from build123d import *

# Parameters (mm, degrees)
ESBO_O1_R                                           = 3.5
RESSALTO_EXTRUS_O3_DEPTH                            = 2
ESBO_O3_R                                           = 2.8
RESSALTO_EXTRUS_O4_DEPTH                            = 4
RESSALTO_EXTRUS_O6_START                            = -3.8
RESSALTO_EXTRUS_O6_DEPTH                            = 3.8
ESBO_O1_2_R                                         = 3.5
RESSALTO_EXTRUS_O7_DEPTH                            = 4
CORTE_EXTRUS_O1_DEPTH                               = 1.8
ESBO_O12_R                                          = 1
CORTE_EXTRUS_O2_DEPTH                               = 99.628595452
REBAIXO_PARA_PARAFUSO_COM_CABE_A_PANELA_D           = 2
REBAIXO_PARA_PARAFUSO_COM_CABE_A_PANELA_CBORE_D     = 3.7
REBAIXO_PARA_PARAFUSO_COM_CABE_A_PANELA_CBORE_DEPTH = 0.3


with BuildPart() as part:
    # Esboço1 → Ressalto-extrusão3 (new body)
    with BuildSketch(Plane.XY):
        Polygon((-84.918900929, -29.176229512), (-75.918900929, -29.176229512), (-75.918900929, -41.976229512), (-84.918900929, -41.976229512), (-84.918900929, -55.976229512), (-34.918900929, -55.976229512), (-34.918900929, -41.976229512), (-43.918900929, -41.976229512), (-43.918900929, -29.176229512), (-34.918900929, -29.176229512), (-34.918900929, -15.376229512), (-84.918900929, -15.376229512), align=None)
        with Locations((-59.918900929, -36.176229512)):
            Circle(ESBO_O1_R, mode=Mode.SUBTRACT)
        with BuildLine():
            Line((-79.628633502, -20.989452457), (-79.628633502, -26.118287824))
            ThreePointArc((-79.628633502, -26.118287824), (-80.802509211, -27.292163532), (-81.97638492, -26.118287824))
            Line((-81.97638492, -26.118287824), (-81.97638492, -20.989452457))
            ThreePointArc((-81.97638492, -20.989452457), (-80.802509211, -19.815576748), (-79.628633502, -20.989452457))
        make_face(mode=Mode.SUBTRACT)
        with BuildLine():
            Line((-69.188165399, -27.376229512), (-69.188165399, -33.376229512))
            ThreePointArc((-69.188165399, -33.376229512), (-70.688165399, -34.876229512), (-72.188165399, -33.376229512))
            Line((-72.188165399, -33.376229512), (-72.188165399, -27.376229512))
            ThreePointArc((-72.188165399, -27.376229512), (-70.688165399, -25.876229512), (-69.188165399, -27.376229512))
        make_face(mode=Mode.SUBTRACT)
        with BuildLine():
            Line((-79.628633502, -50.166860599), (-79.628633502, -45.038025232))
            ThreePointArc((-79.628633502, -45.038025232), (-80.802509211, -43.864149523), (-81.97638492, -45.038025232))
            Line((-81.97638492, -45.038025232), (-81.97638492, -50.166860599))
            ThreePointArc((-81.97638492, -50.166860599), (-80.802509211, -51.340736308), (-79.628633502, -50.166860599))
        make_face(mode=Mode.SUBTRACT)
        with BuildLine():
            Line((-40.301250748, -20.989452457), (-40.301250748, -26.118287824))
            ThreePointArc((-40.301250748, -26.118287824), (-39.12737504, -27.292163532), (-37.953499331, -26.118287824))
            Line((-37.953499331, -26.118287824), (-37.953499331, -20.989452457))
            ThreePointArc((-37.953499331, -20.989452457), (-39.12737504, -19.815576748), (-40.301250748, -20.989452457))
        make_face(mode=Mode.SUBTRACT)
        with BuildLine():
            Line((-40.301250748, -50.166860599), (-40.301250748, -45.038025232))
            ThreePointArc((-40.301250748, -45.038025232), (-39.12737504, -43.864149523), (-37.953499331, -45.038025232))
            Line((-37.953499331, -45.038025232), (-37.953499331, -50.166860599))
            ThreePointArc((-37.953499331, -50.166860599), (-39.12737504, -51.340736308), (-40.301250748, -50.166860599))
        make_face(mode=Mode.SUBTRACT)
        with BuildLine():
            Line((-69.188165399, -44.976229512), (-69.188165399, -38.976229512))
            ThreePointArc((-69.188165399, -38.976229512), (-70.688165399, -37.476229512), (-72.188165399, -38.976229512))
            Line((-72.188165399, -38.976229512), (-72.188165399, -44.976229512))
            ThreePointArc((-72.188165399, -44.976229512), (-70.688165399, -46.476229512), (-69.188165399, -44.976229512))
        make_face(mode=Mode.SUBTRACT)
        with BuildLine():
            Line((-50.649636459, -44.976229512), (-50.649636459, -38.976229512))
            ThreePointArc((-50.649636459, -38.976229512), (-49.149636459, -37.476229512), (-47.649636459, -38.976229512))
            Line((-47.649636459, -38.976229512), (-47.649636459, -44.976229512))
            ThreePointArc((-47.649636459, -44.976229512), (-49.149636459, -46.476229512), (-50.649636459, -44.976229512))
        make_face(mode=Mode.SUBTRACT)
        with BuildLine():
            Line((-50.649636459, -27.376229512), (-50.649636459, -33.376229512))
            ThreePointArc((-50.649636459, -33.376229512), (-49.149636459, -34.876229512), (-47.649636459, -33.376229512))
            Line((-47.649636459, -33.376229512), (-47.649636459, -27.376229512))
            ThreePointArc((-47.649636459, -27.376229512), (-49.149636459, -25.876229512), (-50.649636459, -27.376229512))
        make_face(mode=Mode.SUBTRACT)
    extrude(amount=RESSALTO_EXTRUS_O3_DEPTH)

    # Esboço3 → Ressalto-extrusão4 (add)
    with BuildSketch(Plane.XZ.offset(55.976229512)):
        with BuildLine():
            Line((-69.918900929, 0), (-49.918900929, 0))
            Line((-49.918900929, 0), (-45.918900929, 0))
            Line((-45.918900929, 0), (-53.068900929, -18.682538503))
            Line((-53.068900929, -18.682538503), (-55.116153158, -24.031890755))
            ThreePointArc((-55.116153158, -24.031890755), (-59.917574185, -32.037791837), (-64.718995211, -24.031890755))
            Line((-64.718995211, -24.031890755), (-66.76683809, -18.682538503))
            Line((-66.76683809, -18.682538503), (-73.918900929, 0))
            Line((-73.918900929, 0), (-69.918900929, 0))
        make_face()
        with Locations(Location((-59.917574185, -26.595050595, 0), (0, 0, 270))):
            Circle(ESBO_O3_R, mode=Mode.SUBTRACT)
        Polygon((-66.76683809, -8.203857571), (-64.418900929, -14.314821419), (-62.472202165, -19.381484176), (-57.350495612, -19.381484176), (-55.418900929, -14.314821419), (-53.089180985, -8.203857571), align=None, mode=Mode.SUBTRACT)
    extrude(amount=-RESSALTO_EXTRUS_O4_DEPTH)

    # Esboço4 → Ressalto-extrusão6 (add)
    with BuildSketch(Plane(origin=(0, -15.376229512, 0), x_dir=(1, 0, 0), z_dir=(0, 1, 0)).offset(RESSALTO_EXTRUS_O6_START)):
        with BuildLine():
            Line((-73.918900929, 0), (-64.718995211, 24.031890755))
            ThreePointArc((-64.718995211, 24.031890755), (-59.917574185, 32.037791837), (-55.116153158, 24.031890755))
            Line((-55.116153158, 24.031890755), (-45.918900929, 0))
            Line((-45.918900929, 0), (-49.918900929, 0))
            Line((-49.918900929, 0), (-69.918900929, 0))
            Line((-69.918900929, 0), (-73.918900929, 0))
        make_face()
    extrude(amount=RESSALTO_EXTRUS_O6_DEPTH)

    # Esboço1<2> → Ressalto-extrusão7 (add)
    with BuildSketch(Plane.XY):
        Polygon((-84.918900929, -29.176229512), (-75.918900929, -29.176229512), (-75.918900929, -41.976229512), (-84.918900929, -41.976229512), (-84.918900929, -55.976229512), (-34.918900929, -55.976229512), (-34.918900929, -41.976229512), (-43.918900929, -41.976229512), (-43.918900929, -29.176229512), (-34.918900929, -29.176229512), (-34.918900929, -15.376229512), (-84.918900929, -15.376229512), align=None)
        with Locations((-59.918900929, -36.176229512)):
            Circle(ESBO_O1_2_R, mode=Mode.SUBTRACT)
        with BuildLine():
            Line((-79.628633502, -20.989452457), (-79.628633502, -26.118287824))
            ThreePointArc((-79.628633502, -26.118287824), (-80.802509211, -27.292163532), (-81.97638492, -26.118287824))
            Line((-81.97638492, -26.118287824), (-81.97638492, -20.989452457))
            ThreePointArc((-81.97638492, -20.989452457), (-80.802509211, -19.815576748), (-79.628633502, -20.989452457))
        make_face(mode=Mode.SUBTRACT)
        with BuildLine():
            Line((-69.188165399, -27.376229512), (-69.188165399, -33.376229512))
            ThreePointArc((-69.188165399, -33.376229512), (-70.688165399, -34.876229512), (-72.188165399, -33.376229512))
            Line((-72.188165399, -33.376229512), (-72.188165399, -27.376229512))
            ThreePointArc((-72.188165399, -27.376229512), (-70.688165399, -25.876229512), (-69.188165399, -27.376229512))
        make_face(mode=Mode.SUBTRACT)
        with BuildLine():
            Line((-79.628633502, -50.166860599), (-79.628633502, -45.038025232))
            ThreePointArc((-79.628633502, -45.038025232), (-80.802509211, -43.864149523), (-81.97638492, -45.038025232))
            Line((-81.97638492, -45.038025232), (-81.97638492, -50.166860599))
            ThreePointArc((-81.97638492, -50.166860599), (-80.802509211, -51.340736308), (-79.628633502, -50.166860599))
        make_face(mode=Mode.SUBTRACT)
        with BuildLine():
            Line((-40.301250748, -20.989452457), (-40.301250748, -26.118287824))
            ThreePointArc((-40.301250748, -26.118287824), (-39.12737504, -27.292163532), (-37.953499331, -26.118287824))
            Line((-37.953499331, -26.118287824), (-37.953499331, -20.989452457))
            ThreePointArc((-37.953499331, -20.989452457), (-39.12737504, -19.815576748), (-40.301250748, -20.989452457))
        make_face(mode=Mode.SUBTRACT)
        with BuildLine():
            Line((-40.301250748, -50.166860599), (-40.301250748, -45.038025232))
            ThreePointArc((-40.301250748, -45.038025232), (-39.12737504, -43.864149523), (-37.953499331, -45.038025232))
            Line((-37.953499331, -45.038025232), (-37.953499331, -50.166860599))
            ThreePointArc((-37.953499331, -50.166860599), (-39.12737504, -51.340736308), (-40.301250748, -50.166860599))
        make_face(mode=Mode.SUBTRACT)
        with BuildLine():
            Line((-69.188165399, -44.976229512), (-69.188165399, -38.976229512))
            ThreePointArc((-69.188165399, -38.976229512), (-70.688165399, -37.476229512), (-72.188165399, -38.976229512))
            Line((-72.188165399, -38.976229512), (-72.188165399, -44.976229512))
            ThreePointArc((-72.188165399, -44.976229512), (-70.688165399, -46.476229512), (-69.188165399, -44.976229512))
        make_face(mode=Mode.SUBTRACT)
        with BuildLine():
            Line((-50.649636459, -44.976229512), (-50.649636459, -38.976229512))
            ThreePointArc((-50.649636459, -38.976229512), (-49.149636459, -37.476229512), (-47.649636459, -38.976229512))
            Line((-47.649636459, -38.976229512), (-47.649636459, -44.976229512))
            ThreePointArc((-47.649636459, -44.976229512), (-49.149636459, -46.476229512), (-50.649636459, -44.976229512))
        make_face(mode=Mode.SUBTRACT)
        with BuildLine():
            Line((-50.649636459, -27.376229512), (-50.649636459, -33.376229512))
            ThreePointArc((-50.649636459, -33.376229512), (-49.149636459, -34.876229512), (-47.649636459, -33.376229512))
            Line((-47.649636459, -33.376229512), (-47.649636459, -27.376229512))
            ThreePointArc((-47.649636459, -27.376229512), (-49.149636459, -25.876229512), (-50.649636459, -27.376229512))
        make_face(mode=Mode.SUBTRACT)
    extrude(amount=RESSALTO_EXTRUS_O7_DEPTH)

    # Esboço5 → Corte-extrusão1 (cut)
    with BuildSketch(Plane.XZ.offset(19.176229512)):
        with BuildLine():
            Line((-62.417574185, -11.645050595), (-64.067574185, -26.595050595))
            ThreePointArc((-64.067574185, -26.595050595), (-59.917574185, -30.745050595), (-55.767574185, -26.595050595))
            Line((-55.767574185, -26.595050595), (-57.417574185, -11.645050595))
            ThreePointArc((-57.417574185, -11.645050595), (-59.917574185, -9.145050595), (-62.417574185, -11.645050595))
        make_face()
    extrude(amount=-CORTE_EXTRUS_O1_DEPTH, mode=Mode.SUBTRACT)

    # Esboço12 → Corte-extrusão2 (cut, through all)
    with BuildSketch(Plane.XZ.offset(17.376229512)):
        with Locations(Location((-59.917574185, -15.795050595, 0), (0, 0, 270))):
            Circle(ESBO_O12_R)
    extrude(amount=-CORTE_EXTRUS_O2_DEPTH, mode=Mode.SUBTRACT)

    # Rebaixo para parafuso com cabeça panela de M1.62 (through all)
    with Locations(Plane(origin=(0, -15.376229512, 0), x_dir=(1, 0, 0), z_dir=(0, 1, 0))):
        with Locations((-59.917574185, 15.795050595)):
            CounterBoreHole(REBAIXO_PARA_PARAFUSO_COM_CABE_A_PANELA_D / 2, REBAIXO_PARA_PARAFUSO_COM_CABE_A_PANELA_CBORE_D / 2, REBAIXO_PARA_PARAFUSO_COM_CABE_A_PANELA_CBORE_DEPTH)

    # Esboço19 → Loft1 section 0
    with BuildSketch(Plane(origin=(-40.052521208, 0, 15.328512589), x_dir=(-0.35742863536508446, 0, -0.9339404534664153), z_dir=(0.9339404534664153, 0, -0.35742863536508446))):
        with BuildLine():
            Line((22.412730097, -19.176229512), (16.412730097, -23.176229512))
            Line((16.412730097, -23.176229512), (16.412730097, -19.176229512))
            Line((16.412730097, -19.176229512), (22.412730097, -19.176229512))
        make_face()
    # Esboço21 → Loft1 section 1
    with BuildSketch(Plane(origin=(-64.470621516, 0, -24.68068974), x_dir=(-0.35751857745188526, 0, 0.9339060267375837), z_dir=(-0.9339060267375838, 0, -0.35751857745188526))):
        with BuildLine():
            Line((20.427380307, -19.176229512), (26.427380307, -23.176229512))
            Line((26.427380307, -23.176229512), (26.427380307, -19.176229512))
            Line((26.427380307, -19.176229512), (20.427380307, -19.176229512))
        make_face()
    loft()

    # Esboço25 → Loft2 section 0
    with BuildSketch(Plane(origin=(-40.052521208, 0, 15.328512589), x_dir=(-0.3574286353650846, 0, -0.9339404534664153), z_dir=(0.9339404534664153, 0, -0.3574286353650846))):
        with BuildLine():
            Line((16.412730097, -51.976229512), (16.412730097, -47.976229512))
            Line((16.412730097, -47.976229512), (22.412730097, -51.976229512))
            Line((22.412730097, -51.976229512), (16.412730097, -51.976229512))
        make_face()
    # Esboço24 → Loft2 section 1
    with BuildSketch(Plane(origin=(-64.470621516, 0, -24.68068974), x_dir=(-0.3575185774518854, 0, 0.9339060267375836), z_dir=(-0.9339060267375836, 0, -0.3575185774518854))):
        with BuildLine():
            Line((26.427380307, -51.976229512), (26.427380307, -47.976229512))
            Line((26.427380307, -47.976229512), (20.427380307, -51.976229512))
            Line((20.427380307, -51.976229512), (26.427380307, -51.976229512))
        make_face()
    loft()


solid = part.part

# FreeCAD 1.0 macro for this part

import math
import FreeCAD as App
import Part
import Sketcher
from FreeCAD import Vector
Q = App.Units.Quantity

doc = App.newDocument("Part")
body = doc.addObject("PartDesign::Body", "Body")

# Sketch on XY plane
sketch1 = body.newObject("Sketcher::SketchObject", "Sketch")
sketch1.AttachmentSupport = (doc.getObject("XY_Plane"), [""])
sketch1.MapMode = "FlatFace"
sketch1.addGeometry([
    Part.LineSegment(Vector(-84.9, -29.2, 0), Vector(-75.9, -29.2, 0)),  # 0
    Part.LineSegment(Vector(-75.9, -29.2, 0), Vector(-75.9, -42, 0)),  # 1
    Part.LineSegment(Vector(-75.9, -42, 0), Vector(-84.9, -42, 0)),  # 2
    Part.LineSegment(Vector(-84.9, -42, 0), Vector(-84.9, -56, 0)),  # 3
    Part.LineSegment(Vector(-84.9, -56, 0), Vector(-34.9, -56, 0)),  # 4
    Part.LineSegment(Vector(-34.9, -56, 0), Vector(-34.9, -42, 0)),  # 5
    Part.LineSegment(Vector(-34.9, -42, 0), Vector(-43.9, -42, 0)),  # 6
    Part.LineSegment(Vector(-43.9, -42, 0), Vector(-43.9, -29.2, 0)),  # 7
    Part.LineSegment(Vector(-43.9, -29.2, 0), Vector(-34.9, -29.2, 0)),  # 8
    Part.LineSegment(Vector(-34.9, -29.2, 0), Vector(-34.9, -15.4, 0)),  # 9
    Part.LineSegment(Vector(-34.9, -15.4, 0), Vector(-84.9, -15.4, 0)),  # 10
    Part.LineSegment(Vector(-84.9, -15.4, 0), Vector(-84.9, -29.2, 0)),  # 11
    Part.LineSegment(Vector(-79.6, -45, 0), Vector(-79.6, -50.2, 0)),  # 12
    Part.ArcOfCircle(Part.Circle(Vector(-80.8, -50.2, 0), Vector(0, 0, 1), 1.2), math.radians(180), math.radians(360)),  # 13
    Part.LineSegment(Vector(-82, -50.2, 0), Vector(-82, -45, 0)),  # 14
    Part.ArcOfCircle(Part.Circle(Vector(-80.8, -45, 0), Vector(0, 0, 1), 1.2), math.radians(0), math.radians(180)),  # 15
    Part.LineSegment(Vector(-69.2, -39, 0), Vector(-69.2, -45, 0)),  # 16
    Part.ArcOfCircle(Part.Circle(Vector(-70.7, -45, 0), Vector(0, 0, 1), 1.5), math.radians(180), math.radians(360)),  # 17
    Part.LineSegment(Vector(-72.2, -45, 0), Vector(-72.2, -39, 0)),  # 18
    Part.ArcOfCircle(Part.Circle(Vector(-70.7, -39, 0), Vector(0, 0, 1), 1.5), math.radians(0), math.radians(180)),  # 19
    Part.ArcOfCircle(Part.Circle(Vector(-39.1, -50.2, 0), Vector(0, 0, 1), 1.2), math.radians(180), math.radians(360)),  # 20
    Part.LineSegment(Vector(-40.3, -50.2, 0), Vector(-40.3, -45, 0)),  # 21
    Part.ArcOfCircle(Part.Circle(Vector(-39.1, -45, 0), Vector(0, 0, 1), 1.2), math.radians(0), math.radians(180)),  # 22
    Part.LineSegment(Vector(-38, -45, 0), Vector(-38, -50.2, 0)),  # 23
    Part.ArcOfCircle(Part.Circle(Vector(-49.1, -45, 0), Vector(0, 0, 1), 1.5), math.radians(180), math.radians(360)),  # 24
    Part.LineSegment(Vector(-50.6, -45, 0), Vector(-50.6, -39, 0)),  # 25
    Part.ArcOfCircle(Part.Circle(Vector(-49.1, -39, 0), Vector(0, 0, 1), 1.5), math.radians(0), math.radians(180)),  # 26
    Part.LineSegment(Vector(-47.6, -39, 0), Vector(-47.6, -45, 0)),  # 27
    Part.Circle(Vector(-59.9, -36.2, 0), Vector(0, 0, 1), 3.5),  # 28
    Part.ArcOfCircle(Part.Circle(Vector(-70.7, -27.4, 0), Vector(0, 0, 1), 1.5), math.radians(0), math.radians(180)),  # 29
    Part.LineSegment(Vector(-69.2, -27.4, 0), Vector(-69.2, -33.4, 0)),  # 30
    Part.ArcOfCircle(Part.Circle(Vector(-70.7, -33.4, 0), Vector(0, 0, 1), 1.5), math.radians(180), math.radians(360)),  # 31
    Part.LineSegment(Vector(-72.2, -33.4, 0), Vector(-72.2, -27.4, 0)),  # 32
    Part.ArcOfCircle(Part.Circle(Vector(-80.8, -21, 0), Vector(0, 0, 1), 1.2), math.radians(0), math.radians(180)),  # 33
    Part.LineSegment(Vector(-79.6, -21, 0), Vector(-79.6, -26.1, 0)),  # 34
    Part.ArcOfCircle(Part.Circle(Vector(-80.8, -26.1, 0), Vector(0, 0, 1), 1.2), math.radians(-180), math.radians(0)),  # 35
    Part.LineSegment(Vector(-82, -26.1, 0), Vector(-82, -21, 0)),  # 36
    Part.LineSegment(Vector(-50.6, -33.4, 0), Vector(-50.6, -27.4, 0)),  # 37
    Part.ArcOfCircle(Part.Circle(Vector(-49.1, -27.4, 0), Vector(0, 0, 1), 1.5), math.radians(0), math.radians(180)),  # 38
    Part.LineSegment(Vector(-47.6, -27.4, 0), Vector(-47.6, -33.4, 0)),  # 39
    Part.ArcOfCircle(Part.Circle(Vector(-49.1, -33.4, 0), Vector(0, 0, 1), 1.5), math.radians(180), math.radians(360)),  # 40
    Part.LineSegment(Vector(-40.3, -26.1, 0), Vector(-40.3, -21, 0)),  # 41
    Part.ArcOfCircle(Part.Circle(Vector(-39.1, -21, 0), Vector(0, 0, 1), 1.2), math.radians(0), math.radians(180)),  # 42
    Part.LineSegment(Vector(-38, -21, 0), Vector(-38, -26.1, 0)),  # 43
    Part.ArcOfCircle(Part.Circle(Vector(-39.1, -26.1, 0), Vector(0, 0, 1), 1.2), math.radians(-180), math.radians(0)),  # 44
], False)
sketch1.addConstraint([
    Sketcher.Constraint("Coincident", 0, 2, 1, 1),
    Sketcher.Constraint("Coincident", 1, 2, 2, 1),
    Sketcher.Constraint("Coincident", 2, 2, 3, 1),
    Sketcher.Constraint("Coincident", 3, 2, 4, 1),
    Sketcher.Constraint("Coincident", 4, 2, 5, 1),
    Sketcher.Constraint("Coincident", 5, 2, 6, 1),
    Sketcher.Constraint("Coincident", 6, 2, 7, 1),
    Sketcher.Constraint("Coincident", 7, 2, 8, 1),
    Sketcher.Constraint("Coincident", 8, 2, 9, 1),
    Sketcher.Constraint("Coincident", 9, 2, 10, 1),
    Sketcher.Constraint("Coincident", 10, 2, 11, 1),
    Sketcher.Constraint("Coincident", 11, 2, 0, 1),
    Sketcher.Constraint("Tangent", 12, 2, 13, 2),
    Sketcher.Constraint("Tangent", 13, 1, 14, 1),
    Sketcher.Constraint("Tangent", 14, 2, 15, 2),
    Sketcher.Constraint("Tangent", 15, 1, 12, 1),
    Sketcher.Constraint("Tangent", 16, 2, 17, 2),
    Sketcher.Constraint("Tangent", 17, 1, 18, 1),
    Sketcher.Constraint("Tangent", 18, 2, 19, 2),
    Sketcher.Constraint("Tangent", 19, 1, 16, 1),
    Sketcher.Constraint("Tangent", 20, 1, 21, 1),
    Sketcher.Constraint("Tangent", 21, 2, 22, 2),
    Sketcher.Constraint("Tangent", 22, 1, 23, 1),
    Sketcher.Constraint("Tangent", 23, 2, 20, 2),
    Sketcher.Constraint("Tangent", 24, 1, 25, 1),
    Sketcher.Constraint("Tangent", 25, 2, 26, 2),
    Sketcher.Constraint("Tangent", 26, 1, 27, 1),
    Sketcher.Constraint("Tangent", 27, 2, 24, 2),
    Sketcher.Constraint("Tangent", 29, 1, 30, 1),
    Sketcher.Constraint("Tangent", 30, 2, 31, 2),
    Sketcher.Constraint("Tangent", 31, 1, 32, 1),
    Sketcher.Constraint("Tangent", 32, 2, 29, 2),
    Sketcher.Constraint("Tangent", 33, 1, 34, 1),
    Sketcher.Constraint("Tangent", 34, 2, 35, 2),
    Sketcher.Constraint("Tangent", 35, 1, 36, 1),
    Sketcher.Constraint("Tangent", 36, 2, 33, 2),
    Sketcher.Constraint("Tangent", 37, 2, 38, 2),
    Sketcher.Constraint("Tangent", 38, 1, 39, 1),
    Sketcher.Constraint("Tangent", 39, 2, 40, 2),
    Sketcher.Constraint("Tangent", 40, 1, 37, 1),
    Sketcher.Constraint("Tangent", 41, 2, 42, 2),
    Sketcher.Constraint("Tangent", 42, 1, 43, 1),
    Sketcher.Constraint("Tangent", 43, 2, 44, 2),
    Sketcher.Constraint("Tangent", 44, 1, 41, 1),
    Sketcher.Constraint("Horizontal", 0),
    Sketcher.Constraint("Vertical", 1),
    Sketcher.Constraint("Horizontal", 2),
    Sketcher.Constraint("Vertical", 3),
    Sketcher.Constraint("Horizontal", 4),
    Sketcher.Constraint("Vertical", 5),
    Sketcher.Constraint("Horizontal", 6),
    Sketcher.Constraint("Vertical", 7),
    Sketcher.Constraint("Horizontal", 8),
    Sketcher.Constraint("Vertical", 9),
    Sketcher.Constraint("Horizontal", 10),
    Sketcher.Constraint("Vertical", 11),
    Sketcher.Constraint("Vertical", 12),
    Sketcher.Constraint("Vertical", 14),
    Sketcher.Constraint("Vertical", 16),
    Sketcher.Constraint("Vertical", 18),
    Sketcher.Constraint("Vertical", 21),
    Sketcher.Constraint("Vertical", 23),
    Sketcher.Constraint("Vertical", 25),
    Sketcher.Constraint("Vertical", 27),
    Sketcher.Constraint("Vertical", 30),
    Sketcher.Constraint("Vertical", 32),
    Sketcher.Constraint("Vertical", 34),
    Sketcher.Constraint("Vertical", 36),
    Sketcher.Constraint("Vertical", 37),
    Sketcher.Constraint("Vertical", 39),
    Sketcher.Constraint("Vertical", 41),
    Sketcher.Constraint("Vertical", 43),
    Sketcher.Constraint("Equal", 15, 20),
    Sketcher.Constraint("Equal", 19, 24),
    Sketcher.Constraint("Equal", 26, 29),
    Sketcher.Constraint("Equal", 22, 33),
    Sketcher.Constraint("Equal", 31, 38),
    Sketcher.Constraint("Equal", 35, 42),
    Sketcher.Constraint("Horizontal", 13, 3, 20, 3),
    Sketcher.Constraint("Horizontal", 15, 3, 22, 3),
    Sketcher.Constraint("Horizontal", 17, 3, 24, 3),
    Sketcher.Constraint("Horizontal", 19, 3, 26, 3),
    Sketcher.Constraint("Horizontal", 29, 3, 38, 3),
    Sketcher.Constraint("Horizontal", 31, 3, 40, 3),
    Sketcher.Constraint("Horizontal", 33, 3, 42, 3),
    Sketcher.Constraint("Horizontal", 35, 3, 44, 3),
    Sketcher.Constraint("Horizontal", 2, 2, 5, 2),
    Sketcher.Constraint("Horizontal", 0, 2, 7, 2),
    Sketcher.Constraint("Vertical", 19, 3, 29, 3),
    Sketcher.Constraint("Vertical", 15, 3, 33, 3),
    Sketcher.Constraint("Vertical", 26, 3, 38, 3),
    Sketcher.Constraint("Vertical", 22, 3, 42, 3),
    Sketcher.Constraint("Vertical", 5, 2, 8, 2),
    Sketcher.Constraint("Vertical", 3, 2, 10, 2),
    Sketcher.Constraint("Equal", 2, 6),
    Sketcher.Constraint("Equal", 27, 30),
    Sketcher.Constraint("Equal", 23, 34),
    Sketcher.Constraint("Diameter", 28, Q("7 mm")),
    Sketcher.Constraint("Radius", 17, Q("1.5 mm")),
    Sketcher.Constraint("DistanceX", 0, 1, 0, 2, Q("9 mm")),
    Sketcher.Constraint("DistanceX", 4, 1, 4, 2, Q("50 mm")),
    Sketcher.Constraint("DistanceY", 3, 2, 3, 1, Q("14 mm")),
    Sketcher.Constraint("DistanceY", 16, 2, 16, 1, Q("6 mm")),
    Sketcher.Constraint("DistanceY", 1, 2, 1, 1, Q("12.8 mm")),
    Sketcher.Constraint("DistanceY", 9, 1, 9, 2, Q("13.8 mm")),
    Sketcher.Constraint("Radius", 13, Q("1.173876 mm")),
    Sketcher.Constraint("DistanceX", 28, 3, -1, 1, Q("59.918901 mm")),
    Sketcher.Constraint("DistanceX", 0, 2, -1, 1, Q("75.918901 mm")),
    Sketcher.Constraint("DistanceX", 22, 1, -1, 1, Q("37.953499 mm")),
    Sketcher.Constraint("DistanceY", 12, 2, 12, 1, Q("5.128835 mm")),
    Sketcher.Constraint("DistanceX", 13, 3, -1, 1, Q("80.802509 mm")),
    Sketcher.Constraint("DistanceY", 13, 3, -1, 1, Q("50.166861 mm")),
    Sketcher.Constraint("DistanceY", 17, 3, -1, 1, Q("44.97623 mm")),
    Sketcher.Constraint("DistanceY", 28, 3, -1, 1, Q("36.17623 mm")),
    Sketcher.Constraint("DistanceY", 29, 3, -1, 1, Q("27.37623 mm")),
    Sketcher.Constraint("DistanceY", 0, 2, -1, 1, Q("29.17623 mm")),
    Sketcher.Constraint("DistanceX", 17, 3, -1, 1, Q("70.688165 mm")),
    Sketcher.Constraint("DistanceX", 24, 3, -1, 1, Q("49.149636 mm")),
    Sketcher.Constraint("DistanceY", 33, 3, -1, 1, Q("20.989452 mm")),
])
pad1 = body.newObject("PartDesign::Pad", "Pad")
pad1.Profile = sketch1
pad1.Length = 2

# Sketch on XZ plane
sketch2 = body.newObject("Sketcher::SketchObject", "Sketch001")
sketch2.AttachmentSupport = (doc.getObject("XZ_Plane"), [""])
sketch2.MapMode = "FlatFace"
sketch2.AttachmentOffset = App.Placement(Vector(0, 0, 55.97623), App.Rotation())
sketch2.addGeometry([
    Part.LineSegment(Vector(-53.1, -18.7, 0), Vector(-45.9, 0, 0)),  # 0
    Part.LineSegment(Vector(-45.9, 0, 0), Vector(-73.9, 0, 0)),  # 1
    Part.LineSegment(Vector(-73.9, 0, 0), Vector(-66.8, -18.7, 0)),  # 2
    Part.LineSegment(Vector(-66.8, -18.7, 0), Vector(-64.7, -24, 0)),  # 3
    Part.ArcOfCircle(Part.Circle(Vector(-59.9, -26.6, 0), Vector(0, 0, 1), 5.4), math.radians(152), math.radians(388)),  # 4
    Part.LineSegment(Vector(-55.1, -24, 0), Vector(-53.1, -18.7, 0)),  # 5
    Part.Circle(Vector(-59.9, -26.6, 0), Vector(0, 0, 1), 2.8),  # 6
    Part.LineSegment(Vector(-66.8, -8.2, 0), Vector(-53.1, -8.2, 0)),  # 7
    Part.LineSegment(Vector(-53.1, -8.2, 0), Vector(-55.4, -14.3, 0)),  # 8
    Part.LineSegment(Vector(-55.4, -14.3, 0), Vector(-57.4, -19.4, 0)),  # 9
    Part.LineSegment(Vector(-57.4, -19.4, 0), Vector(-62.5, -19.4, 0)),  # 10
    Part.LineSegment(Vector(-62.5, -19.4, 0), Vector(-64.4, -14.3, 0)),  # 11
    Part.LineSegment(Vector(-64.4, -14.3, 0), Vector(-66.8, -8.2, 0)),  # 12
], False)
sketch2.addConstraint([
    Sketcher.Constraint("Coincident", 0, 2, 1, 1),
    Sketcher.Constraint("Coincident", 1, 2, 2, 1),
    Sketcher.Constraint("Coincident", 2, 2, 3, 1),
    Sketcher.Constraint("Coincident", 3, 2, 4, 1),
    Sketcher.Constraint("Coincident", 4, 2, 5, 1),
    Sketcher.Constraint("Coincident", 5, 2, 0, 1),
    Sketcher.Constraint("Coincident", 7, 2, 8, 1),
    Sketcher.Constraint("Coincident", 8, 2, 9, 1),
    Sketcher.Constraint("Coincident", 9, 2, 10, 1),
    Sketcher.Constraint("Coincident", 10, 2, 11, 1),
    Sketcher.Constraint("Coincident", 11, 2, 12, 1),
    Sketcher.Constraint("Coincident", 12, 2, 7, 1),
    Sketcher.Constraint("Horizontal", 1),
    Sketcher.Constraint("Horizontal", 7),
    Sketcher.Constraint("Horizontal", 10),
    Sketcher.Constraint("Coincident", 6, 3, 4, 3),
    Sketcher.Constraint("PointOnObject", 0, 2, -1),
    Sketcher.Constraint("Parallel", 2, 3),
    Sketcher.Constraint("Parallel", 0, 5),
    Sketcher.Constraint("Parallel", 8, 9),
    Sketcher.Constraint("Parallel", 11, 12),
    Sketcher.Constraint("Horizontal", 3, 2, 4, 2),
    Sketcher.Constraint("Horizontal", 2, 2, 5, 2),
    Sketcher.Constraint("Horizontal", 8, 2, 11, 2),
    Sketcher.Constraint("Vertical", 2, 2, 12, 2),
    Sketcher.Constraint("Diameter", 6, Q("5.6 mm")),
    Sketcher.Constraint("DistanceX", 1, 2, 1, 1, Q("28 mm")),
    Sketcher.Constraint("DistanceX", 11, 2, 8, 2, Q("9 mm")),
    Sketcher.Constraint("Radius", 4, Q("5.442741 mm")),
    Sketcher.Constraint("DistanceX", 8, 2, 5, 2, Q("2.35 mm")),
    Sketcher.Constraint("Distance", 12, Q("6.546502 mm")),
    Sketcher.Constraint("DistanceX", 0, 2, -1, 1, Q("45.918901 mm")),
    Sketcher.Constraint("DistanceX", 5, 2, -1, 1, Q("53.068901 mm")),
    Sketcher.Constraint("DistanceX", 11, 2, 10, 2, Q("1.946699 mm")),
    Sketcher.Constraint("Distance", 2, Q("20.004731 mm")),
    Sketcher.Constraint("Distance", 8, Q("6.53999 mm")),
    Sketcher.Constraint("Distance", 11, Q("5.427772 mm")),
    Sketcher.Constraint("DistanceY", 4, 3, -1, 1, Q("26.595051 mm")),
    Sketcher.Constraint("DistanceY", 8, 2, -1, 1, Q("14.314821 mm")),
])
pad2 = body.newObject("PartDesign::Pad", "Pad001")
pad2.Profile = sketch2
pad2.Length = 4
pad2.Reversed = True

# Sketch on XZ plane
sketch3 = body.newObject("Sketcher::SketchObject", "Sketch002")
sketch3.AttachmentSupport = (doc.getObject("XZ_Plane"), [""])
sketch3.MapMode = "FlatFace"
sketch3.AttachmentOffset = App.Placement(Vector(0, 0, 19.17623), App.Rotation())
sketch3.addGeometry([
    Part.LineSegment(Vector(-65, -24, 0), Vector(-74, 0, 0)),
    Part.LineSegment(Vector(-74, 0, 0), Vector(-46, 0, 0)),
    Part.LineSegment(Vector(-46, 0, 0), Vector(-55, -24, 0)),
    Part.ArcOfCircle(Part.Circle(Vector(-60, -27, 0), Vector(0, 0, 1), 5), math.radians(152), math.radians(388)),
], False)
sketch3.addConstraint([
    Sketcher.Constraint("Coincident", 0, 2, 1, 1),
    Sketcher.Constraint("Coincident", 1, 2, 2, 1),
    Sketcher.Constraint("Coincident", 2, 2, 3, 2),
    Sketcher.Constraint("Coincident", 3, 1, 0, 1),
    Sketcher.Constraint("Horizontal", 1),
    Sketcher.Constraint("PointOnObject", 0, 2, -1),
    Sketcher.Constraint("Horizontal", 2, 2, 3, 1),
    Sketcher.Constraint("DistanceX", 1, 1, 1, 2, Q("28 mm")),
    Sketcher.Constraint("Radius", 3, Q("5.442741 mm")),
    Sketcher.Constraint("DistanceX", 0, 2, -1, 1, Q("73.918901 mm")),
    Sketcher.Constraint("DistanceY", 3, 3, -1, 1, Q("26.595051 mm")),
    Sketcher.Constraint("DistanceY", 2, 2, -1, 1, Q("24.031891 mm")),
    Sketcher.Constraint("Distance", 0, Q("25.732665 mm")),
])
pad3 = body.newObject("PartDesign::Pad", "Pad002")
pad3.Profile = sketch3
pad3.Length = 3.8
pad3.Reversed = True

# Sketch on XY plane
sketch4 = body.newObject("Sketcher::SketchObject", "Sketch003")
sketch4.AttachmentSupport = (doc.getObject("XY_Plane"), [""])
sketch4.MapMode = "FlatFace"
sketch4.addGeometry([
    Part.LineSegment(Vector(-84.9, -29.2, 0), Vector(-75.9, -29.2, 0)),  # 0
    Part.LineSegment(Vector(-75.9, -29.2, 0), Vector(-75.9, -42, 0)),  # 1
    Part.LineSegment(Vector(-75.9, -42, 0), Vector(-84.9, -42, 0)),  # 2
    Part.LineSegment(Vector(-84.9, -42, 0), Vector(-84.9, -56, 0)),  # 3
    Part.LineSegment(Vector(-84.9, -56, 0), Vector(-34.9, -56, 0)),  # 4
    Part.LineSegment(Vector(-34.9, -56, 0), Vector(-34.9, -42, 0)),  # 5
    Part.LineSegment(Vector(-34.9, -42, 0), Vector(-43.9, -42, 0)),  # 6
    Part.LineSegment(Vector(-43.9, -42, 0), Vector(-43.9, -29.2, 0)),  # 7
    Part.LineSegment(Vector(-43.9, -29.2, 0), Vector(-34.9, -29.2, 0)),  # 8
    Part.LineSegment(Vector(-34.9, -29.2, 0), Vector(-34.9, -15.4, 0)),  # 9
    Part.LineSegment(Vector(-34.9, -15.4, 0), Vector(-84.9, -15.4, 0)),  # 10
    Part.LineSegment(Vector(-84.9, -15.4, 0), Vector(-84.9, -29.2, 0)),  # 11
    Part.LineSegment(Vector(-79.6, -45, 0), Vector(-79.6, -50.2, 0)),  # 12
    Part.ArcOfCircle(Part.Circle(Vector(-80.8, -50.2, 0), Vector(0, 0, 1), 1.2), math.radians(180), math.radians(360)),  # 13
    Part.LineSegment(Vector(-82, -50.2, 0), Vector(-82, -45, 0)),  # 14
    Part.ArcOfCircle(Part.Circle(Vector(-80.8, -45, 0), Vector(0, 0, 1), 1.2), math.radians(0), math.radians(180)),  # 15
    Part.LineSegment(Vector(-69.2, -39, 0), Vector(-69.2, -45, 0)),  # 16
    Part.ArcOfCircle(Part.Circle(Vector(-70.7, -45, 0), Vector(0, 0, 1), 1.5), math.radians(180), math.radians(360)),  # 17
    Part.LineSegment(Vector(-72.2, -45, 0), Vector(-72.2, -39, 0)),  # 18
    Part.ArcOfCircle(Part.Circle(Vector(-70.7, -39, 0), Vector(0, 0, 1), 1.5), math.radians(0), math.radians(180)),  # 19
    Part.ArcOfCircle(Part.Circle(Vector(-39.1, -50.2, 0), Vector(0, 0, 1), 1.2), math.radians(180), math.radians(360)),  # 20
    Part.LineSegment(Vector(-40.3, -50.2, 0), Vector(-40.3, -45, 0)),  # 21
    Part.ArcOfCircle(Part.Circle(Vector(-39.1, -45, 0), Vector(0, 0, 1), 1.2), math.radians(0), math.radians(180)),  # 22
    Part.LineSegment(Vector(-38, -45, 0), Vector(-38, -50.2, 0)),  # 23
    Part.ArcOfCircle(Part.Circle(Vector(-49.1, -45, 0), Vector(0, 0, 1), 1.5), math.radians(180), math.radians(360)),  # 24
    Part.LineSegment(Vector(-50.6, -45, 0), Vector(-50.6, -39, 0)),  # 25
    Part.ArcOfCircle(Part.Circle(Vector(-49.1, -39, 0), Vector(0, 0, 1), 1.5), math.radians(0), math.radians(180)),  # 26
    Part.LineSegment(Vector(-47.6, -39, 0), Vector(-47.6, -45, 0)),  # 27
    Part.Circle(Vector(-59.9, -36.2, 0), Vector(0, 0, 1), 3.5),  # 28
    Part.ArcOfCircle(Part.Circle(Vector(-70.7, -27.4, 0), Vector(0, 0, 1), 1.5), math.radians(0), math.radians(180)),  # 29
    Part.LineSegment(Vector(-69.2, -27.4, 0), Vector(-69.2, -33.4, 0)),  # 30
    Part.ArcOfCircle(Part.Circle(Vector(-70.7, -33.4, 0), Vector(0, 0, 1), 1.5), math.radians(180), math.radians(360)),  # 31
    Part.LineSegment(Vector(-72.2, -33.4, 0), Vector(-72.2, -27.4, 0)),  # 32
    Part.ArcOfCircle(Part.Circle(Vector(-80.8, -21, 0), Vector(0, 0, 1), 1.2), math.radians(0), math.radians(180)),  # 33
    Part.LineSegment(Vector(-79.6, -21, 0), Vector(-79.6, -26.1, 0)),  # 34
    Part.ArcOfCircle(Part.Circle(Vector(-80.8, -26.1, 0), Vector(0, 0, 1), 1.2), math.radians(-180), math.radians(0)),  # 35
    Part.LineSegment(Vector(-82, -26.1, 0), Vector(-82, -21, 0)),  # 36
    Part.LineSegment(Vector(-50.6, -33.4, 0), Vector(-50.6, -27.4, 0)),  # 37
    Part.ArcOfCircle(Part.Circle(Vector(-49.1, -27.4, 0), Vector(0, 0, 1), 1.5), math.radians(0), math.radians(180)),  # 38
    Part.LineSegment(Vector(-47.6, -27.4, 0), Vector(-47.6, -33.4, 0)),  # 39
    Part.ArcOfCircle(Part.Circle(Vector(-49.1, -33.4, 0), Vector(0, 0, 1), 1.5), math.radians(180), math.radians(360)),  # 40
    Part.LineSegment(Vector(-40.3, -26.1, 0), Vector(-40.3, -21, 0)),  # 41
    Part.ArcOfCircle(Part.Circle(Vector(-39.1, -21, 0), Vector(0, 0, 1), 1.2), math.radians(0), math.radians(180)),  # 42
    Part.LineSegment(Vector(-38, -21, 0), Vector(-38, -26.1, 0)),  # 43
    Part.ArcOfCircle(Part.Circle(Vector(-39.1, -26.1, 0), Vector(0, 0, 1), 1.2), math.radians(-180), math.radians(0)),  # 44
], False)
sketch4.addConstraint([
    Sketcher.Constraint("Coincident", 0, 2, 1, 1),
    Sketcher.Constraint("Coincident", 1, 2, 2, 1),
    Sketcher.Constraint("Coincident", 2, 2, 3, 1),
    Sketcher.Constraint("Coincident", 3, 2, 4, 1),
    Sketcher.Constraint("Coincident", 4, 2, 5, 1),
    Sketcher.Constraint("Coincident", 5, 2, 6, 1),
    Sketcher.Constraint("Coincident", 6, 2, 7, 1),
    Sketcher.Constraint("Coincident", 7, 2, 8, 1),
    Sketcher.Constraint("Coincident", 8, 2, 9, 1),
    Sketcher.Constraint("Coincident", 9, 2, 10, 1),
    Sketcher.Constraint("Coincident", 10, 2, 11, 1),
    Sketcher.Constraint("Coincident", 11, 2, 0, 1),
    Sketcher.Constraint("Tangent", 12, 2, 13, 2),
    Sketcher.Constraint("Tangent", 13, 1, 14, 1),
    Sketcher.Constraint("Tangent", 14, 2, 15, 2),
    Sketcher.Constraint("Tangent", 15, 1, 12, 1),
    Sketcher.Constraint("Tangent", 16, 2, 17, 2),
    Sketcher.Constraint("Tangent", 17, 1, 18, 1),
    Sketcher.Constraint("Tangent", 18, 2, 19, 2),
    Sketcher.Constraint("Tangent", 19, 1, 16, 1),
    Sketcher.Constraint("Tangent", 20, 1, 21, 1),
    Sketcher.Constraint("Tangent", 21, 2, 22, 2),
    Sketcher.Constraint("Tangent", 22, 1, 23, 1),
    Sketcher.Constraint("Tangent", 23, 2, 20, 2),
    Sketcher.Constraint("Tangent", 24, 1, 25, 1),
    Sketcher.Constraint("Tangent", 25, 2, 26, 2),
    Sketcher.Constraint("Tangent", 26, 1, 27, 1),
    Sketcher.Constraint("Tangent", 27, 2, 24, 2),
    Sketcher.Constraint("Tangent", 29, 1, 30, 1),
    Sketcher.Constraint("Tangent", 30, 2, 31, 2),
    Sketcher.Constraint("Tangent", 31, 1, 32, 1),
    Sketcher.Constraint("Tangent", 32, 2, 29, 2),
    Sketcher.Constraint("Tangent", 33, 1, 34, 1),
    Sketcher.Constraint("Tangent", 34, 2, 35, 2),
    Sketcher.Constraint("Tangent", 35, 1, 36, 1),
    Sketcher.Constraint("Tangent", 36, 2, 33, 2),
    Sketcher.Constraint("Tangent", 37, 2, 38, 2),
    Sketcher.Constraint("Tangent", 38, 1, 39, 1),
    Sketcher.Constraint("Tangent", 39, 2, 40, 2),
    Sketcher.Constraint("Tangent", 40, 1, 37, 1),
    Sketcher.Constraint("Tangent", 41, 2, 42, 2),
    Sketcher.Constraint("Tangent", 42, 1, 43, 1),
    Sketcher.Constraint("Tangent", 43, 2, 44, 2),
    Sketcher.Constraint("Tangent", 44, 1, 41, 1),
    Sketcher.Constraint("Horizontal", 0),
    Sketcher.Constraint("Vertical", 1),
    Sketcher.Constraint("Horizontal", 2),
    Sketcher.Constraint("Vertical", 3),
    Sketcher.Constraint("Horizontal", 4),
    Sketcher.Constraint("Vertical", 5),
    Sketcher.Constraint("Horizontal", 6),
    Sketcher.Constraint("Vertical", 7),
    Sketcher.Constraint("Horizontal", 8),
    Sketcher.Constraint("Vertical", 9),
    Sketcher.Constraint("Horizontal", 10),
    Sketcher.Constraint("Vertical", 11),
    Sketcher.Constraint("Vertical", 12),
    Sketcher.Constraint("Vertical", 14),
    Sketcher.Constraint("Vertical", 16),
    Sketcher.Constraint("Vertical", 18),
    Sketcher.Constraint("Vertical", 21),
    Sketcher.Constraint("Vertical", 23),
    Sketcher.Constraint("Vertical", 25),
    Sketcher.Constraint("Vertical", 27),
    Sketcher.Constraint("Vertical", 30),
    Sketcher.Constraint("Vertical", 32),
    Sketcher.Constraint("Vertical", 34),
    Sketcher.Constraint("Vertical", 36),
    Sketcher.Constraint("Vertical", 37),
    Sketcher.Constraint("Vertical", 39),
    Sketcher.Constraint("Vertical", 41),
    Sketcher.Constraint("Vertical", 43),
    Sketcher.Constraint("Equal", 15, 20),
    Sketcher.Constraint("Equal", 19, 24),
    Sketcher.Constraint("Equal", 26, 29),
    Sketcher.Constraint("Equal", 22, 33),
    Sketcher.Constraint("Equal", 31, 38),
    Sketcher.Constraint("Equal", 35, 42),
    Sketcher.Constraint("Horizontal", 13, 3, 20, 3),
    Sketcher.Constraint("Horizontal", 15, 3, 22, 3),
    Sketcher.Constraint("Horizontal", 17, 3, 24, 3),
    Sketcher.Constraint("Horizontal", 19, 3, 26, 3),
    Sketcher.Constraint("Horizontal", 29, 3, 38, 3),
    Sketcher.Constraint("Horizontal", 31, 3, 40, 3),
    Sketcher.Constraint("Horizontal", 33, 3, 42, 3),
    Sketcher.Constraint("Horizontal", 35, 3, 44, 3),
    Sketcher.Constraint("Horizontal", 2, 2, 5, 2),
    Sketcher.Constraint("Horizontal", 0, 2, 7, 2),
    Sketcher.Constraint("Vertical", 19, 3, 29, 3),
    Sketcher.Constraint("Vertical", 15, 3, 33, 3),
    Sketcher.Constraint("Vertical", 26, 3, 38, 3),
    Sketcher.Constraint("Vertical", 22, 3, 42, 3),
    Sketcher.Constraint("Vertical", 5, 2, 8, 2),
    Sketcher.Constraint("Vertical", 3, 2, 10, 2),
    Sketcher.Constraint("Equal", 2, 6),
    Sketcher.Constraint("Equal", 27, 30),
    Sketcher.Constraint("Equal", 23, 34),
    Sketcher.Constraint("Diameter", 28, Q("7 mm")),
    Sketcher.Constraint("Radius", 17, Q("1.5 mm")),
    Sketcher.Constraint("DistanceX", 0, 1, 0, 2, Q("9 mm")),
    Sketcher.Constraint("DistanceX", 4, 1, 4, 2, Q("50 mm")),
    Sketcher.Constraint("DistanceY", 3, 2, 3, 1, Q("14 mm")),
    Sketcher.Constraint("DistanceY", 16, 2, 16, 1, Q("6 mm")),
    Sketcher.Constraint("DistanceY", 1, 2, 1, 1, Q("12.8 mm")),
    Sketcher.Constraint("DistanceY", 9, 1, 9, 2, Q("13.8 mm")),
    Sketcher.Constraint("Radius", 13, Q("1.173876 mm")),
    Sketcher.Constraint("DistanceX", 28, 3, -1, 1, Q("59.918901 mm")),
    Sketcher.Constraint("DistanceX", 0, 2, -1, 1, Q("75.918901 mm")),
    Sketcher.Constraint("DistanceX", 22, 1, -1, 1, Q("37.953499 mm")),
    Sketcher.Constraint("DistanceY", 12, 2, 12, 1, Q("5.128835 mm")),
    Sketcher.Constraint("DistanceX", 13, 3, -1, 1, Q("80.802509 mm")),
    Sketcher.Constraint("DistanceY", 13, 3, -1, 1, Q("50.166861 mm")),
    Sketcher.Constraint("DistanceY", 17, 3, -1, 1, Q("44.97623 mm")),
    Sketcher.Constraint("DistanceY", 28, 3, -1, 1, Q("36.17623 mm")),
    Sketcher.Constraint("DistanceY", 29, 3, -1, 1, Q("27.37623 mm")),
    Sketcher.Constraint("DistanceY", 0, 2, -1, 1, Q("29.17623 mm")),
    Sketcher.Constraint("DistanceX", 17, 3, -1, 1, Q("70.688165 mm")),
    Sketcher.Constraint("DistanceX", 24, 3, -1, 1, Q("49.149636 mm")),
    Sketcher.Constraint("DistanceY", 33, 3, -1, 1, Q("20.989452 mm")),
])
pad4 = body.newObject("PartDesign::Pad", "Pad003")
pad4.Profile = sketch4
pad4.Length = 4

# Sketch on XZ plane
sketch5 = body.newObject("Sketcher::SketchObject", "Sketch004")
sketch5.AttachmentSupport = (doc.getObject("XZ_Plane"), [""])
sketch5.MapMode = "FlatFace"
sketch5.AttachmentOffset = App.Placement(Vector(0, 0, 19.17623), App.Rotation())
sketch5.addGeometry([
    Part.LineSegment(Vector(-62.4, -11.6, 0), Vector(-64.1, -26.6, 0)),
    Part.ArcOfCircle(Part.Circle(Vector(-59.9, -26.6, 0), Vector(0, 0, 1), 4.2), math.radians(180), math.radians(360)),
    Part.LineSegment(Vector(-55.8, -26.6, 0), Vector(-57.4, -11.6, 0)),
    Part.ArcOfCircle(Part.Circle(Vector(-59.9, -11.6, 0), Vector(0, 0, 1), 2.5), math.radians(0), math.radians(180)),
], False)
sketch5.addConstraint([
    Sketcher.Constraint("Coincident", 0, 2, 1, 1),
    Sketcher.Constraint("Coincident", 1, 2, 2, 1),
    Sketcher.Constraint("Coincident", 2, 2, 3, 1),
    Sketcher.Constraint("Coincident", 3, 2, 0, 1),
    Sketcher.Constraint("Horizontal", 1, 3, 0, 2),
    Sketcher.Constraint("Horizontal", 0, 2, 1, 2),
    Sketcher.Constraint("Horizontal", 3, 3, 2, 2),
    Sketcher.Constraint("Horizontal", 2, 2, 3, 2),
    Sketcher.Constraint("Vertical", 1, 3, 3, 3),
    Sketcher.Constraint("Radius", 3, Q("2.5 mm")),
    Sketcher.Constraint("Radius", 1, Q("4.15 mm")),
    Sketcher.Constraint("DistanceY", 1, 3, 3, 3, Q("14.95 mm")),
    Sketcher.Constraint("DistanceY", 1, 3, -1, 1, Q("26.595051 mm")),
    Sketcher.Constraint("DistanceX", 1, 3, -1, 1, Q("59.917574 mm")),
])
pocket1 = body.newObject("PartDesign::Pocket", "Pocket")
pocket1.Profile = sketch5
pocket1.Length = 1.8

# Sketch on XZ plane
sketch6 = body.newObject("Sketcher::SketchObject", "Sketch005")
sketch6.AttachmentSupport = (doc.getObject("XZ_Plane"), [""])
sketch6.MapMode = "FlatFace"
sketch6.AttachmentOffset = App.Placement(Vector(0, 0, 17.37623), App.Rotation())
sketch6.addGeometry(Part.Circle(Vector(-59.9, -15.8, 0), Vector(0, 0, 1), 1), False)
sketch6.addConstraint([
    Sketcher.Constraint("Diameter", 0, Q("2 mm")),
    Sketcher.Constraint("DistanceY", 0, 3, -1, 1, Q("15.795051 mm")),
    Sketcher.Constraint("DistanceX", 0, 3, -1, 1, Q("59.917574 mm")),
])
pocket2 = body.newObject("PartDesign::Pocket", "Pocket001")
pocket2.Profile = sketch6
pocket2.Type = "ThroughAll"

# Sketch on XZ plane
sketch7 = body.newObject("Sketcher::SketchObject", "Sketch006")
sketch7.AttachmentSupport = (doc.getObject("XZ_Plane"), [""])
sketch7.MapMode = "FlatFace"
sketch7.AttachmentOffset = App.Placement(Vector(0, 0, 15.37623), App.Rotation())
sketch7.addGeometry(Part.Circle(Vector(-59.9, -15.8, 0), Vector(0, 0, 1), 1), False)
sketch7.addConstraint([
    Sketcher.Constraint("Diameter", 0, Q("2 mm")),
    Sketcher.Constraint("DistanceY", 0, 3, -1, 1, Q("15.795051 mm")),
    Sketcher.Constraint("DistanceX", 0, 3, -1, 1, Q("59.917574 mm")),
])
doc.recompute()
hole = body.newObject("PartDesign::Hole", "Hole")
hole.Profile = sketch7
hole.ThreadType = "None"
hole.Diameter = 2
hole.DepthType = "ThroughAll"
hole.HoleCutType = "Counterbore"
hole.HoleCutDiameter = 3.7
hole.HoleCutDepth = 0.3
hole.Reversed = True

# Sketch on an angled plane
sketch8 = body.newObject("Sketcher::SketchObject", "Sketch007")
sketch8.Placement = App.Placement(Vector(-40.052521, 0, 15.328513), App.Rotation(Vector(-0.357428635, 0, -0.933940453), Vector(0, 0.999999999, 0), Vector(0.933940453, 0, -0.357428635), "ZXY"))
sketch8.addGeometry([
    Part.LineSegment(Vector(16.4, -23.2, 0), Vector(22.4, -19.2, 0)),
    Part.LineSegment(Vector(22.4, -19.2, 0), Vector(16.4, -19.2, 0)),
    Part.LineSegment(Vector(16.4, -19.2, 0), Vector(16.4, -23.2, 0)),
], False)
sketch8.addConstraint([
    Sketcher.Constraint("Coincident", 0, 2, 1, 1),
    Sketcher.Constraint("Coincident", 1, 2, 2, 1),
    Sketcher.Constraint("Coincident", 2, 2, 0, 1),
    Sketcher.Constraint("Horizontal", 1),
    Sketcher.Constraint("Vertical", 2),
    Sketcher.Constraint("DistanceX", 1, 2, 1, 1, Q("6 mm")),
    Sketcher.Constraint("DistanceY", 2, 2, 2, 1, Q("4 mm")),
    Sketcher.Constraint("DistanceX", -1, 1, 0, 2, Q("22.41273 mm")),
    Sketcher.Constraint("DistanceY", 0, 2, -1, 1, Q("19.176229 mm")),
])

# Sketch on an angled plane
sketch9 = body.newObject("Sketcher::SketchObject", "Sketch008")
sketch9.Placement = App.Placement(Vector(-64.470622, 0, -24.68069), App.Rotation(Vector(-0.357518577, 0, 0.933906027), Vector(0, 1, 0), Vector(-0.933906027, 0, -0.357518577), "ZXY"))
sketch9.addGeometry([
    Part.LineSegment(Vector(20.4, -19.2, 0), Vector(26.4, -23.2, 0)),
    Part.LineSegment(Vector(26.4, -23.2, 0), Vector(26.4, -19.2, 0)),
    Part.LineSegment(Vector(26.4, -19.2, 0), Vector(20.4, -19.2, 0)),
], False)
sketch9.addConstraint([
    Sketcher.Constraint("Coincident", 0, 2, 1, 1),
    Sketcher.Constraint("Coincident", 1, 2, 2, 1),
    Sketcher.Constraint("Coincident", 2, 2, 0, 1),
    Sketcher.Constraint("Vertical", 1),
    Sketcher.Constraint("Horizontal", 2),
    Sketcher.Constraint("DistanceX", 2, 2, 2, 1, Q("6 mm")),
    Sketcher.Constraint("DistanceY", 1, 1, 1, 2, Q("4 mm")),
    Sketcher.Constraint("DistanceX", -1, 1, 0, 2, Q("26.42738 mm")),
    Sketcher.Constraint("DistanceY", 0, 2, -1, 1, Q("23.17623 mm")),
])

additiveloft = body.newObject("PartDesign::AdditiveLoft", "AdditiveLoft")
additiveloft.Profile = sketch8
additiveloft.Sections = [sketch9]

# Sketch on an angled plane
sketch10 = body.newObject("Sketcher::SketchObject", "Sketch009")
sketch10.Placement = App.Placement(Vector(-40.052521, 0, 15.328513), App.Rotation(Vector(-0.357428635, 0, -0.933940453), Vector(0, 0.999999999, 0), Vector(0.933940453, 0, -0.357428635), "ZXY"))
sketch10.addGeometry([
    Part.LineSegment(Vector(16.4, -48, 0), Vector(16.4, -52, 0)),
    Part.LineSegment(Vector(16.4, -52, 0), Vector(22.4, -52, 0)),
    Part.LineSegment(Vector(22.4, -52, 0), Vector(16.4, -48, 0)),
], False)
sketch10.addConstraint([
    Sketcher.Constraint("Coincident", 0, 2, 1, 1),
    Sketcher.Constraint("Coincident", 1, 2, 2, 1),
    Sketcher.Constraint("Coincident", 2, 2, 0, 1),
    Sketcher.Constraint("Vertical", 0),
    Sketcher.Constraint("Horizontal", 1),
    Sketcher.Constraint("DistanceX", 1, 1, 1, 2, Q("6 mm")),
    Sketcher.Constraint("DistanceY", 0, 2, 0, 1, Q("4 mm")),
    Sketcher.Constraint("DistanceX", -1, 1, 0, 2, Q("16.41273 mm")),
    Sketcher.Constraint("DistanceY", 0, 2, -1, 1, Q("51.976229 mm")),
])

# Sketch on an angled plane
sketch11 = body.newObject("Sketcher::SketchObject", "Sketch010")
sketch11.Placement = App.Placement(Vector(-64.470622, 0, -24.68069), App.Rotation(Vector(-0.357518577, 0, 0.933906027), Vector(0, 1, 0), Vector(-0.933906027, 0, -0.357518577), "ZXY"))
sketch11.addGeometry([
    Part.LineSegment(Vector(26.4, -52, 0), Vector(26.4, -48, 0)),
    Part.LineSegment(Vector(26.4, -48, 0), Vector(20.4, -52, 0)),
    Part.LineSegment(Vector(20.4, -52, 0), Vector(26.4, -52, 0)),
], False)
sketch11.addConstraint([
    Sketcher.Constraint("Coincident", 0, 2, 1, 1),
    Sketcher.Constraint("Coincident", 1, 2, 2, 1),
    Sketcher.Constraint("Coincident", 2, 2, 0, 1),
    Sketcher.Constraint("Vertical", 0),
    Sketcher.Constraint("Horizontal", 2),
    Sketcher.Constraint("DistanceX", 2, 1, 2, 2, Q("6 mm")),
    Sketcher.Constraint("DistanceY", 0, 1, 0, 2, Q("4 mm")),
    Sketcher.Constraint("DistanceX", -1, 1, 0, 2, Q("26.42738 mm")),
    Sketcher.Constraint("DistanceY", 0, 2, -1, 1, Q("47.97623 mm")),
])

additiveloft2 = body.newObject("PartDesign::AdditiveLoft", "AdditiveLoft001")
additiveloft2.Profile = sketch10
additiveloft2.Sections = [sketch11]

doc.recompute()
